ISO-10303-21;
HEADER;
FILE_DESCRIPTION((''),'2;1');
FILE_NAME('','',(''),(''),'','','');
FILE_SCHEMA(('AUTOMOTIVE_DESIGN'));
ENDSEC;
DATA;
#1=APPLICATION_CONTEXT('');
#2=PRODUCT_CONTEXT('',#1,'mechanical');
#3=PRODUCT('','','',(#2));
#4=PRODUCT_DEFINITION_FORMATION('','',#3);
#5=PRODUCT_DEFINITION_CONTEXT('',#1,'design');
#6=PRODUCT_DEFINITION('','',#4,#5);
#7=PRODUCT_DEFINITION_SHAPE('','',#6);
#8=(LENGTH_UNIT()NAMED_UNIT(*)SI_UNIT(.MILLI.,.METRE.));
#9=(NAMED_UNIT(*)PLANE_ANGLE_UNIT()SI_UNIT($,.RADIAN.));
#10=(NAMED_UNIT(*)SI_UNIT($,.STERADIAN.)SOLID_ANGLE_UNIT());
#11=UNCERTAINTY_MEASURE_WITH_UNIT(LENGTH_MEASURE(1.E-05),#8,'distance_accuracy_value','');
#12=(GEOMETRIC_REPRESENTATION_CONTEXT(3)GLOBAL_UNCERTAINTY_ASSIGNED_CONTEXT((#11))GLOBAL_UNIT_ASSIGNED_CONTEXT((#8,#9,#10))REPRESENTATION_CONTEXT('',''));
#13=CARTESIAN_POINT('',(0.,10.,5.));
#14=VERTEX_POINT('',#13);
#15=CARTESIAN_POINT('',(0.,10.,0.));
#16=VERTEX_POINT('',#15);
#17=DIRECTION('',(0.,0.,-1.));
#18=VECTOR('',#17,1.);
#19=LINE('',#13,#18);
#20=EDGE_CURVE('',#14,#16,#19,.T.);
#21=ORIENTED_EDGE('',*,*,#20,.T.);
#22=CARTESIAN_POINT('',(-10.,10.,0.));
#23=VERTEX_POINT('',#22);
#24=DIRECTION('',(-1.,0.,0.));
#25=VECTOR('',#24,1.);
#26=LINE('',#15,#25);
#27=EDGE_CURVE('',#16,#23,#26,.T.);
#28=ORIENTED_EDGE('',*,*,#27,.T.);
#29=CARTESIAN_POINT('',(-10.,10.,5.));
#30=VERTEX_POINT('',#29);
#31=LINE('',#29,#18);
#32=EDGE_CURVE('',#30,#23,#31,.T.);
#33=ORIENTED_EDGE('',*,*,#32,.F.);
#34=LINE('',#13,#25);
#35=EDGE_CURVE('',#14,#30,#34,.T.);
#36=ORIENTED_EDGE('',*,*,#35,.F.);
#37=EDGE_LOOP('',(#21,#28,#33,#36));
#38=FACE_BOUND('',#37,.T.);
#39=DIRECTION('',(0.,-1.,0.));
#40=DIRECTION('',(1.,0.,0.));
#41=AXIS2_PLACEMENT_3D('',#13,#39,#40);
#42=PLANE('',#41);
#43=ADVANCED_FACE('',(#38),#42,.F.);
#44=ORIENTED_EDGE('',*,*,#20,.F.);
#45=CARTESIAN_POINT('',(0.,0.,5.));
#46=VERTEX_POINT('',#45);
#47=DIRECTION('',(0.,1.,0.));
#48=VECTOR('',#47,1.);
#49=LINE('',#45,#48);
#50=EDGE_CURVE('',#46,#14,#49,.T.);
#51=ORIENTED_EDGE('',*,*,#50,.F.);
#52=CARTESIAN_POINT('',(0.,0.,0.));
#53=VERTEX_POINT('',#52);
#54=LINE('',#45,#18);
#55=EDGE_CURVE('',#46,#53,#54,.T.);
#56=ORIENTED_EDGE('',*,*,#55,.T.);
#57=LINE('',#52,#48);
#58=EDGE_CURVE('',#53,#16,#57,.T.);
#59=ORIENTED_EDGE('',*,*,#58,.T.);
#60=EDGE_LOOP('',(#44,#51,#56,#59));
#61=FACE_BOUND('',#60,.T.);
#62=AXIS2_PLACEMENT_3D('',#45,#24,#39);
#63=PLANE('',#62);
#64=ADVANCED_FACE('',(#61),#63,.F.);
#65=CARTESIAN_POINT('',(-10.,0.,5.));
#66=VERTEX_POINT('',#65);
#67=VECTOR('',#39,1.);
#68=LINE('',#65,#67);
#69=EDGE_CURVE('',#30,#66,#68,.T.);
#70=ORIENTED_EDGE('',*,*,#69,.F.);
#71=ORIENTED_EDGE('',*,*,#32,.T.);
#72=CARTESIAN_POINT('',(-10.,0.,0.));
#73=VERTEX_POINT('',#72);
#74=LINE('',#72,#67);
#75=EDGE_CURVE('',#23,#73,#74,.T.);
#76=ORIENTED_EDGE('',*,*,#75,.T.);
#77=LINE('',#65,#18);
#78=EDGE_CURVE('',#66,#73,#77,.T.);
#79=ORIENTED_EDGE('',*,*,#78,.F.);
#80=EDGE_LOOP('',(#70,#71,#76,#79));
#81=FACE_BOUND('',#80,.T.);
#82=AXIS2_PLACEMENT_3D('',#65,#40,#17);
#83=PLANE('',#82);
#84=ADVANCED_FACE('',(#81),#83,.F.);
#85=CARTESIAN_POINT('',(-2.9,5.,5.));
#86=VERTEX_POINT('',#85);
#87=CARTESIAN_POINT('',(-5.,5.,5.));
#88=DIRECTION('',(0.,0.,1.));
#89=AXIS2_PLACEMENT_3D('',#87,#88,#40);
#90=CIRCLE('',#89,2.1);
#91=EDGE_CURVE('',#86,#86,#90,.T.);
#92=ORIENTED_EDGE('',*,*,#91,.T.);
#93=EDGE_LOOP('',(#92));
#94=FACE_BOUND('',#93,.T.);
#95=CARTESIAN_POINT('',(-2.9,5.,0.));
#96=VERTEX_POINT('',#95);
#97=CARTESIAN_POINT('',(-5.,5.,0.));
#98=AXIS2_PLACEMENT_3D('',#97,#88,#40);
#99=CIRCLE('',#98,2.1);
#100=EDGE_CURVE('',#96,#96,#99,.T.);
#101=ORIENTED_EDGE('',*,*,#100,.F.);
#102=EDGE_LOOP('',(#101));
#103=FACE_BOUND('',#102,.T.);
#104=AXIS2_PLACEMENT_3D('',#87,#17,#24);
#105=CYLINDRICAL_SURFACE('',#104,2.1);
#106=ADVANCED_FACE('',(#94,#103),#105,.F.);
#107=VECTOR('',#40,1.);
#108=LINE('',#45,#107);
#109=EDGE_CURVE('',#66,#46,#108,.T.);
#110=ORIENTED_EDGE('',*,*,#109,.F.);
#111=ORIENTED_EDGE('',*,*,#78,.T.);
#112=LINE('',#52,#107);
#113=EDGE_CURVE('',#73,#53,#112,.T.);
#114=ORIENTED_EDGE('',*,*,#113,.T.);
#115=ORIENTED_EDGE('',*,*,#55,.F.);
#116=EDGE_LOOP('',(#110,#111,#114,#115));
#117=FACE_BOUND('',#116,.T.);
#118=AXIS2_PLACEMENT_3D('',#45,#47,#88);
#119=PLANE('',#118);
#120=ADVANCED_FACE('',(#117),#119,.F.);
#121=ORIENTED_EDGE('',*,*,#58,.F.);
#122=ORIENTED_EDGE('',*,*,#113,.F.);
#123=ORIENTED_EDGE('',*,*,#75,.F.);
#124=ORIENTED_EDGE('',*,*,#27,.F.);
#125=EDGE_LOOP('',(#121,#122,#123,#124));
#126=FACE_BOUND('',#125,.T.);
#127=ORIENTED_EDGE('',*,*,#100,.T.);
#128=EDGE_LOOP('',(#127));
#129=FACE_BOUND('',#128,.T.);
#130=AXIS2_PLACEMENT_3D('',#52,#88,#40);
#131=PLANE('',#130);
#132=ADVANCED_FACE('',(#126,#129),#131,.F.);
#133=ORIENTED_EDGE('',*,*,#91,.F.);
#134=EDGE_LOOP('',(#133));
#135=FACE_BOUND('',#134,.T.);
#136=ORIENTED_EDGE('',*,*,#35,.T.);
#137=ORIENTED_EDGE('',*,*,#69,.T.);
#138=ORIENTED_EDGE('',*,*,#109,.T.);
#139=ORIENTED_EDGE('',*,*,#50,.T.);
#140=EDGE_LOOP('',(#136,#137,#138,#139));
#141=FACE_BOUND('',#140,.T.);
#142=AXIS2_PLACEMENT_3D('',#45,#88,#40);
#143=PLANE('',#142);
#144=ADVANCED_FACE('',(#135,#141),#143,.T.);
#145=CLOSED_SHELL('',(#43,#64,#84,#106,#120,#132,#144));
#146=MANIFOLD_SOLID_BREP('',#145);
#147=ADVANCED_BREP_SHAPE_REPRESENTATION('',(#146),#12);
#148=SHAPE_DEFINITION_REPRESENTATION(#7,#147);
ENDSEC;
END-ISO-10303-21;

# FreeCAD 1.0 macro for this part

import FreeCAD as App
import Part
import Sketcher
from FreeCAD import Vector
Q = App.Units.Quantity


def add_polygon(sketch, points):
    """Adds a closed chain of lines whose ends are joined by coincident constraints."""
    first, n = sketch.GeometryCount, len(points)
    for a, b in zip(points, points[1:] + points[:1]):
        sketch.addGeometry(Part.LineSegment(App.Vector(*a, 0), App.Vector(*b, 0)), False)
    for i in range(n):
        sketch.addConstraint(Sketcher.Constraint("Coincident", first + i, 2, first + (i + 1) % n, 1))

doc = App.newDocument("Part")
body = doc.addObject("PartDesign::Body", "Body")

# Sketch on XY plane
sketch1 = doc.addObject("Sketcher::SketchObject", "Sketch")
body.addObject(sketch1)
sketch1.AttachmentSupport = (doc.XY_Plane, [""])
sketch1.MapMode = "FlatFace"
add_polygon(sketch1, [(-10, 10), (-10, 0), (0, 0), (0, 10)])  # lines 0-3
sketch1.addGeometry(Part.Circle(Vector(-5, 5, 0), Vector(0, 0, 1), 2.1), False)  # 4
sketch1.addConstraint(Sketcher.Constraint("Vertical", 0))
sketch1.addConstraint(Sketcher.Constraint("Horizontal", 1))
sketch1.addConstraint(Sketcher.Constraint("Vertical", 2))
sketch1.addConstraint(Sketcher.Constraint("Horizontal", 3))
sketch1.addConstraint(Sketcher.Constraint("Coincident", 1, 2, -1, 1))
sketch1.addConstraint(Sketcher.Constraint("Equal", 3, 0))
sketch1.addConstraint(Sketcher.Constraint("Diameter", 4, Q("4.2 mm")))
sketch1.addConstraint(Sketcher.Constraint("DistanceX", 1, 1, 1, 2, Q("10 mm")))
sketch1.addConstraint(Sketcher.Constraint("DistanceX", 4, 3, -1, 1, Q("5 mm")))
sketch1.addConstraint(Sketcher.Constraint("DistanceY", -1, 1, 4, 3, Q("5 mm")))
pad1 = doc.addObject("PartDesign::Pad", "Pad")
body.addObject(pad1)
pad1.Profile = sketch1
pad1.Length = 5

doc.recompute()
